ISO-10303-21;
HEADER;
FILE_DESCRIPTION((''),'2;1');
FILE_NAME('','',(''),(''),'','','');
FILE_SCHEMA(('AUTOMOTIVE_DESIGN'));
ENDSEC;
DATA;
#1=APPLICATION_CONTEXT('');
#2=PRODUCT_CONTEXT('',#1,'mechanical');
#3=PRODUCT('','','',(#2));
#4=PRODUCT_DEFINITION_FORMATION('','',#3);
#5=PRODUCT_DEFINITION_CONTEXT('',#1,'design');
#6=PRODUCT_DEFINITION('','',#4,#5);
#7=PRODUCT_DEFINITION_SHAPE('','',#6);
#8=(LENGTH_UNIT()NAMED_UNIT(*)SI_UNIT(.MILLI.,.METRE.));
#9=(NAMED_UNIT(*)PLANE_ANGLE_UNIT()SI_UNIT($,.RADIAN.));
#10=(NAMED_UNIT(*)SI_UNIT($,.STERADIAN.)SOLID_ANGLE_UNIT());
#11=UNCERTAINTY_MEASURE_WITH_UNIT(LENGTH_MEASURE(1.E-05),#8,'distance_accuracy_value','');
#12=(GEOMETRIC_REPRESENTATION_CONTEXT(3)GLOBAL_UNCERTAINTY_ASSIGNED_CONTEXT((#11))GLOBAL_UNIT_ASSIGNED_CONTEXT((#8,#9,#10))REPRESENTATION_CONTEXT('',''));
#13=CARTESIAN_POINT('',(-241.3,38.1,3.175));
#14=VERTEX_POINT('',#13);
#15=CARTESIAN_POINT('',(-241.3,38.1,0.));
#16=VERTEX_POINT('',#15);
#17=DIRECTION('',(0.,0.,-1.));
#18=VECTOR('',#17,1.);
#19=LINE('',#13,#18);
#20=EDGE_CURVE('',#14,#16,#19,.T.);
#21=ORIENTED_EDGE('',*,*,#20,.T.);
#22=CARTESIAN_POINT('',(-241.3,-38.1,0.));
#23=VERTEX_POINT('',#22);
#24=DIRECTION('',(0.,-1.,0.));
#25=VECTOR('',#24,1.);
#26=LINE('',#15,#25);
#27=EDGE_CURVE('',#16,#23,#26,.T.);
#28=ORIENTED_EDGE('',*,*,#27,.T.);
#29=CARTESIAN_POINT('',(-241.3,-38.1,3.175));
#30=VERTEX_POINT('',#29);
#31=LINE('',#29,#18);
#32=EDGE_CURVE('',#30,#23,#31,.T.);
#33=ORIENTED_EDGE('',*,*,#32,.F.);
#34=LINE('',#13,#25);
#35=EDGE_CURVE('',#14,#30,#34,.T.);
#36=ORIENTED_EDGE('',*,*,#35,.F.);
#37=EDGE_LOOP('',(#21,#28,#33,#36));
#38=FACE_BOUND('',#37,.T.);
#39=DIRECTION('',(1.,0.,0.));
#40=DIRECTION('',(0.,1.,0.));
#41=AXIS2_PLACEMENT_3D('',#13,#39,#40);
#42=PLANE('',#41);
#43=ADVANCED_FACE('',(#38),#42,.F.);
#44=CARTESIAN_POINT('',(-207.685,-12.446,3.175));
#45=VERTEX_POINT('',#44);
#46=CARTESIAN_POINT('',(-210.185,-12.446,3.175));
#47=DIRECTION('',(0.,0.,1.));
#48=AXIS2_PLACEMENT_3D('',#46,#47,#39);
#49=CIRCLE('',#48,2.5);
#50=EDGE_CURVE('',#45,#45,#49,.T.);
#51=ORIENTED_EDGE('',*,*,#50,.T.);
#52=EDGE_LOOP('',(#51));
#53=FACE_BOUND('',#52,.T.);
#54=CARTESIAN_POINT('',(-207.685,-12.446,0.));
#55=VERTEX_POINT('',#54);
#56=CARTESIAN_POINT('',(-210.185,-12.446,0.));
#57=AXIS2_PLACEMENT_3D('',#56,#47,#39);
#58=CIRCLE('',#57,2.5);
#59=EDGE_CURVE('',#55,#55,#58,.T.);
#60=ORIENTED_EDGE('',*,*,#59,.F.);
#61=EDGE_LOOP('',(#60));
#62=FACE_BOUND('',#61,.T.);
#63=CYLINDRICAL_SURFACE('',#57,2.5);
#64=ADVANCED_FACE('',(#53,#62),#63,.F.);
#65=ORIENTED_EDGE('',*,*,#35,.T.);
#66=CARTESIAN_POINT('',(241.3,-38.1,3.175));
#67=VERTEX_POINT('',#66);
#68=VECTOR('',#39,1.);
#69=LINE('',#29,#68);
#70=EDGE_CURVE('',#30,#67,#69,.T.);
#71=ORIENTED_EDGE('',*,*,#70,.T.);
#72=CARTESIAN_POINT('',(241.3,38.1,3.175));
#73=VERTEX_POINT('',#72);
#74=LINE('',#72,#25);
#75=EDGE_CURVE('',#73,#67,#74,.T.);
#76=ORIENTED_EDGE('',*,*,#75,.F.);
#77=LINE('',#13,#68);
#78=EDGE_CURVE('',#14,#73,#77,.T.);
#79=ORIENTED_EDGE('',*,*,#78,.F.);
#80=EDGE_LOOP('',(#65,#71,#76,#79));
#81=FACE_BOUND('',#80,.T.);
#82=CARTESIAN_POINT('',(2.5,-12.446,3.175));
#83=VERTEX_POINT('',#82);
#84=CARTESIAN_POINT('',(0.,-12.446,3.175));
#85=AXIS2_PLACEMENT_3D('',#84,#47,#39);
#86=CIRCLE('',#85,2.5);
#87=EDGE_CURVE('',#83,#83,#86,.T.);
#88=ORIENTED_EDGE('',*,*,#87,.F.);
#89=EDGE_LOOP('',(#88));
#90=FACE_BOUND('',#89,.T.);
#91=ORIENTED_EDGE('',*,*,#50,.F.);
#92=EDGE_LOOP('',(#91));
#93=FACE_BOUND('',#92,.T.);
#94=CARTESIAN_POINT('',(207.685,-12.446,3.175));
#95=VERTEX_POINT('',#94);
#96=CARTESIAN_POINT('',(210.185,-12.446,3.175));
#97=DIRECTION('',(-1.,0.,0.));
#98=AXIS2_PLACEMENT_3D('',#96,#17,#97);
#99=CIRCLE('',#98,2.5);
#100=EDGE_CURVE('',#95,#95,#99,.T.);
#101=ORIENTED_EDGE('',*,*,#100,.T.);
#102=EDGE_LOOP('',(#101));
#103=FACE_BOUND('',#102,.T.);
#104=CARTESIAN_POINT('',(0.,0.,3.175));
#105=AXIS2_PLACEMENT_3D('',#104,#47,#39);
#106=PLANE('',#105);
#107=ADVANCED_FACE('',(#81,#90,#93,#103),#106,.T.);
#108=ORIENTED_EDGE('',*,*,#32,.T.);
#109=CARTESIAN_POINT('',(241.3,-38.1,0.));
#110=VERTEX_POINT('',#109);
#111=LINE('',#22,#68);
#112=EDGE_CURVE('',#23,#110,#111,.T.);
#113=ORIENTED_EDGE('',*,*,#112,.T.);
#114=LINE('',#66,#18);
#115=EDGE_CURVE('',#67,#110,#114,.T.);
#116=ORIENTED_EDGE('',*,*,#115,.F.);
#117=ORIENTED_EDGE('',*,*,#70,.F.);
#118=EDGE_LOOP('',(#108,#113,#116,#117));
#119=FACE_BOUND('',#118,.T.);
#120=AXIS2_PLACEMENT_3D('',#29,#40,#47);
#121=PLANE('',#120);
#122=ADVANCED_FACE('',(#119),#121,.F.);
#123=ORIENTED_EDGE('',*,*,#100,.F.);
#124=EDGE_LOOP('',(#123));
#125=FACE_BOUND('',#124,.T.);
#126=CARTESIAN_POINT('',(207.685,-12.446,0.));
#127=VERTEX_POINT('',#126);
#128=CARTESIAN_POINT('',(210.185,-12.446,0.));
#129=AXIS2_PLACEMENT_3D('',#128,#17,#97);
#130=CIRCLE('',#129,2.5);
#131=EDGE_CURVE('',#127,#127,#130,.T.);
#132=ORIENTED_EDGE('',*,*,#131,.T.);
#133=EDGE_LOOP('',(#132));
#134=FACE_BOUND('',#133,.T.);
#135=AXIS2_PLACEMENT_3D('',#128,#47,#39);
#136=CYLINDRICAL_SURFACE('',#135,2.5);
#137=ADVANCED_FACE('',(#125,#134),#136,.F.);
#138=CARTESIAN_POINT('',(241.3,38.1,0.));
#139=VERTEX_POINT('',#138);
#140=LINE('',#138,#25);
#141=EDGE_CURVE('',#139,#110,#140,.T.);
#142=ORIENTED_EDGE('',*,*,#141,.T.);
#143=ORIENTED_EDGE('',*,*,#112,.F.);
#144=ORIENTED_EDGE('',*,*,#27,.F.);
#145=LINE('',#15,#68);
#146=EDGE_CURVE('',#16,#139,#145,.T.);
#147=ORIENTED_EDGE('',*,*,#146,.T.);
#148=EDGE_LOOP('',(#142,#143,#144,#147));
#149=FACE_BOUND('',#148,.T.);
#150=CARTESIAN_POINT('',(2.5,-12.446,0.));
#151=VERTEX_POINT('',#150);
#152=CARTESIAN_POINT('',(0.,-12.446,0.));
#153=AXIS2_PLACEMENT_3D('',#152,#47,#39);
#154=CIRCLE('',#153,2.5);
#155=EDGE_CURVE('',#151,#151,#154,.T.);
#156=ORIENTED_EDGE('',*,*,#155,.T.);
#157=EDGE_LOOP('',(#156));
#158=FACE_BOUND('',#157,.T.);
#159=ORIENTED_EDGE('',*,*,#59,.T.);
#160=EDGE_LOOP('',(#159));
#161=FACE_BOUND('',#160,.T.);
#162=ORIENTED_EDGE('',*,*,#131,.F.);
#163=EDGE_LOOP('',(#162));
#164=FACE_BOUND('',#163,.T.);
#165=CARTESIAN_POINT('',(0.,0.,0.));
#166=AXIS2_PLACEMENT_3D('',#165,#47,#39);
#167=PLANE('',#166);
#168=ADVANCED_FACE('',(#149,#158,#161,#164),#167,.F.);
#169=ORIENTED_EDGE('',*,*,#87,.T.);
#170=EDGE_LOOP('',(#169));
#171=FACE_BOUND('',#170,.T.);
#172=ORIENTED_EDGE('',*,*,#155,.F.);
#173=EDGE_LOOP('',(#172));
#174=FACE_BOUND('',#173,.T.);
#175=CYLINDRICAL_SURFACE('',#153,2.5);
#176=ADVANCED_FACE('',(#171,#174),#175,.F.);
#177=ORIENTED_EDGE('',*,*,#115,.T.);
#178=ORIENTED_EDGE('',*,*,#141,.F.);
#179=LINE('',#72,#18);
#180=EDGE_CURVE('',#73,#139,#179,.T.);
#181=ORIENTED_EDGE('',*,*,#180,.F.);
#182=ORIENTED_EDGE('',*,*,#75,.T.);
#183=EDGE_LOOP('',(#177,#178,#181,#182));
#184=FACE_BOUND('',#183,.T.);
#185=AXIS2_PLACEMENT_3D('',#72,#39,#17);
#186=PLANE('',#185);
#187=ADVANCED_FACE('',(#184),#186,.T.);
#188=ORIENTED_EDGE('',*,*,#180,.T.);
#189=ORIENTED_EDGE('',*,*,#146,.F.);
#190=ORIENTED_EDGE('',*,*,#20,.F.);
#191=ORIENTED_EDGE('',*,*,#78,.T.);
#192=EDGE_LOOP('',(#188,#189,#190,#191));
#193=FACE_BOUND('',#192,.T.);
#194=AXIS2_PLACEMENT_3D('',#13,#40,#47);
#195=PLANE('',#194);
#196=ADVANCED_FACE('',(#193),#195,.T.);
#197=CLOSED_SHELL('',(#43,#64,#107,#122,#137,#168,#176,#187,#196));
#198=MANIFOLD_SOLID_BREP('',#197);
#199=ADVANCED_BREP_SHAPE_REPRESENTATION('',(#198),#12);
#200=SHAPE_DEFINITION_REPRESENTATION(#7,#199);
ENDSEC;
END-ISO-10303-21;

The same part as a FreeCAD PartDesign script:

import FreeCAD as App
import Part
import Sketcher

V = App.Vector
Q = App.Units.Quantity

doc = App.newDocument("Part")
body = doc.addObject("PartDesign::Body", "Body")

sketch1 = body.newObject("Sketcher::SketchObject", "Sketch")
sketch1.AttachmentSupport = (doc.getObject("XY_Plane"), [""])
sketch1.MapMode = "FlatFace"
sketch1.addGeometry([
    Part.LineSegment(V(-241, 38, 0), V(-241, -38, 0)),
    Part.LineSegment(V(-241, -38, 0), V(241, -38, 0)),
    Part.LineSegment(V(241, -38, 0), V(241, 38, 0)),
    Part.LineSegment(V(241, 38, 0), V(-241, 38, 0)),
], False)
sketch1.addConstraint([
    Sketcher.Constraint("Coincident", 0, 2, 1, 1),
    Sketcher.Constraint("Coincident", 1, 2, 2, 1),
    Sketcher.Constraint("Coincident", 2, 2, 3, 1),
    Sketcher.Constraint("Coincident", 3, 2, 0, 1),
    Sketcher.Constraint("Vertical", 0),
    Sketcher.Constraint("Horizontal", 1),
    Sketcher.Constraint("Vertical", 2),
    Sketcher.Constraint("Horizontal", 3),
    Sketcher.Constraint("Symmetric", 0, 2, 2, 2, -1, 1),
    Sketcher.Constraint("DistanceX", 1, 1, 1, 2, Q("19 in")),
    Sketcher.Constraint("DistanceY", 0, 2, 0, 1, Q("3 in")),
])
pad1 = body.newObject("PartDesign::Pad", "Pad")
pad1.Profile = sketch1
pad1.Length = Q("0.125 in")

sketch2 = body.newObject("Sketcher::SketchObject", "Sketch001")
sketch2.AttachmentSupport = (doc.getObject("XY_Plane"), [""])
sketch2.MapMode = "FlatFace"
sketch2.AttachmentOffset = App.Placement(V(0, 0, 0.125 * 25.4), App.Rotation())
sketch2.addGeometry([
    Part.Circle(V(-210.2, -12.4, 0), V(0, 0, 1), 2.5),
    Part.Circle(V(210.2, -12.4, 0), V(0, 0, 1), 2.5),
    Part.Circle(V(0, -12.4, 0), V(0, 0, 1), 2.5),
], False)
sketch2.addConstraint([
    Sketcher.Constraint("Equal", 0, 1),
    Sketcher.Constraint("Equal", 1, 2),
    Sketcher.Constraint("Symmetric", 0, 3, 1, 3, -2),
    Sketcher.Constraint("PointOnObject", 2, 3, -2),
    Sketcher.Constraint("Horizontal", 1, 3, 2, 3),
    Sketcher.Constraint("Diameter", 0, 5.0),
    Sketcher.Constraint("DistanceY", 0, 3, -1, 1, Q("0.49 in")),
    Sketcher.Constraint("DistanceX", 0, 3, 1, 3, Q("16.55 in")),
])
pocket1 = body.newObject("PartDesign::Pocket", "Pocket")
pocket1.Profile = sketch2
pocket1.Type = "ThroughAll"

doc.recompute()
